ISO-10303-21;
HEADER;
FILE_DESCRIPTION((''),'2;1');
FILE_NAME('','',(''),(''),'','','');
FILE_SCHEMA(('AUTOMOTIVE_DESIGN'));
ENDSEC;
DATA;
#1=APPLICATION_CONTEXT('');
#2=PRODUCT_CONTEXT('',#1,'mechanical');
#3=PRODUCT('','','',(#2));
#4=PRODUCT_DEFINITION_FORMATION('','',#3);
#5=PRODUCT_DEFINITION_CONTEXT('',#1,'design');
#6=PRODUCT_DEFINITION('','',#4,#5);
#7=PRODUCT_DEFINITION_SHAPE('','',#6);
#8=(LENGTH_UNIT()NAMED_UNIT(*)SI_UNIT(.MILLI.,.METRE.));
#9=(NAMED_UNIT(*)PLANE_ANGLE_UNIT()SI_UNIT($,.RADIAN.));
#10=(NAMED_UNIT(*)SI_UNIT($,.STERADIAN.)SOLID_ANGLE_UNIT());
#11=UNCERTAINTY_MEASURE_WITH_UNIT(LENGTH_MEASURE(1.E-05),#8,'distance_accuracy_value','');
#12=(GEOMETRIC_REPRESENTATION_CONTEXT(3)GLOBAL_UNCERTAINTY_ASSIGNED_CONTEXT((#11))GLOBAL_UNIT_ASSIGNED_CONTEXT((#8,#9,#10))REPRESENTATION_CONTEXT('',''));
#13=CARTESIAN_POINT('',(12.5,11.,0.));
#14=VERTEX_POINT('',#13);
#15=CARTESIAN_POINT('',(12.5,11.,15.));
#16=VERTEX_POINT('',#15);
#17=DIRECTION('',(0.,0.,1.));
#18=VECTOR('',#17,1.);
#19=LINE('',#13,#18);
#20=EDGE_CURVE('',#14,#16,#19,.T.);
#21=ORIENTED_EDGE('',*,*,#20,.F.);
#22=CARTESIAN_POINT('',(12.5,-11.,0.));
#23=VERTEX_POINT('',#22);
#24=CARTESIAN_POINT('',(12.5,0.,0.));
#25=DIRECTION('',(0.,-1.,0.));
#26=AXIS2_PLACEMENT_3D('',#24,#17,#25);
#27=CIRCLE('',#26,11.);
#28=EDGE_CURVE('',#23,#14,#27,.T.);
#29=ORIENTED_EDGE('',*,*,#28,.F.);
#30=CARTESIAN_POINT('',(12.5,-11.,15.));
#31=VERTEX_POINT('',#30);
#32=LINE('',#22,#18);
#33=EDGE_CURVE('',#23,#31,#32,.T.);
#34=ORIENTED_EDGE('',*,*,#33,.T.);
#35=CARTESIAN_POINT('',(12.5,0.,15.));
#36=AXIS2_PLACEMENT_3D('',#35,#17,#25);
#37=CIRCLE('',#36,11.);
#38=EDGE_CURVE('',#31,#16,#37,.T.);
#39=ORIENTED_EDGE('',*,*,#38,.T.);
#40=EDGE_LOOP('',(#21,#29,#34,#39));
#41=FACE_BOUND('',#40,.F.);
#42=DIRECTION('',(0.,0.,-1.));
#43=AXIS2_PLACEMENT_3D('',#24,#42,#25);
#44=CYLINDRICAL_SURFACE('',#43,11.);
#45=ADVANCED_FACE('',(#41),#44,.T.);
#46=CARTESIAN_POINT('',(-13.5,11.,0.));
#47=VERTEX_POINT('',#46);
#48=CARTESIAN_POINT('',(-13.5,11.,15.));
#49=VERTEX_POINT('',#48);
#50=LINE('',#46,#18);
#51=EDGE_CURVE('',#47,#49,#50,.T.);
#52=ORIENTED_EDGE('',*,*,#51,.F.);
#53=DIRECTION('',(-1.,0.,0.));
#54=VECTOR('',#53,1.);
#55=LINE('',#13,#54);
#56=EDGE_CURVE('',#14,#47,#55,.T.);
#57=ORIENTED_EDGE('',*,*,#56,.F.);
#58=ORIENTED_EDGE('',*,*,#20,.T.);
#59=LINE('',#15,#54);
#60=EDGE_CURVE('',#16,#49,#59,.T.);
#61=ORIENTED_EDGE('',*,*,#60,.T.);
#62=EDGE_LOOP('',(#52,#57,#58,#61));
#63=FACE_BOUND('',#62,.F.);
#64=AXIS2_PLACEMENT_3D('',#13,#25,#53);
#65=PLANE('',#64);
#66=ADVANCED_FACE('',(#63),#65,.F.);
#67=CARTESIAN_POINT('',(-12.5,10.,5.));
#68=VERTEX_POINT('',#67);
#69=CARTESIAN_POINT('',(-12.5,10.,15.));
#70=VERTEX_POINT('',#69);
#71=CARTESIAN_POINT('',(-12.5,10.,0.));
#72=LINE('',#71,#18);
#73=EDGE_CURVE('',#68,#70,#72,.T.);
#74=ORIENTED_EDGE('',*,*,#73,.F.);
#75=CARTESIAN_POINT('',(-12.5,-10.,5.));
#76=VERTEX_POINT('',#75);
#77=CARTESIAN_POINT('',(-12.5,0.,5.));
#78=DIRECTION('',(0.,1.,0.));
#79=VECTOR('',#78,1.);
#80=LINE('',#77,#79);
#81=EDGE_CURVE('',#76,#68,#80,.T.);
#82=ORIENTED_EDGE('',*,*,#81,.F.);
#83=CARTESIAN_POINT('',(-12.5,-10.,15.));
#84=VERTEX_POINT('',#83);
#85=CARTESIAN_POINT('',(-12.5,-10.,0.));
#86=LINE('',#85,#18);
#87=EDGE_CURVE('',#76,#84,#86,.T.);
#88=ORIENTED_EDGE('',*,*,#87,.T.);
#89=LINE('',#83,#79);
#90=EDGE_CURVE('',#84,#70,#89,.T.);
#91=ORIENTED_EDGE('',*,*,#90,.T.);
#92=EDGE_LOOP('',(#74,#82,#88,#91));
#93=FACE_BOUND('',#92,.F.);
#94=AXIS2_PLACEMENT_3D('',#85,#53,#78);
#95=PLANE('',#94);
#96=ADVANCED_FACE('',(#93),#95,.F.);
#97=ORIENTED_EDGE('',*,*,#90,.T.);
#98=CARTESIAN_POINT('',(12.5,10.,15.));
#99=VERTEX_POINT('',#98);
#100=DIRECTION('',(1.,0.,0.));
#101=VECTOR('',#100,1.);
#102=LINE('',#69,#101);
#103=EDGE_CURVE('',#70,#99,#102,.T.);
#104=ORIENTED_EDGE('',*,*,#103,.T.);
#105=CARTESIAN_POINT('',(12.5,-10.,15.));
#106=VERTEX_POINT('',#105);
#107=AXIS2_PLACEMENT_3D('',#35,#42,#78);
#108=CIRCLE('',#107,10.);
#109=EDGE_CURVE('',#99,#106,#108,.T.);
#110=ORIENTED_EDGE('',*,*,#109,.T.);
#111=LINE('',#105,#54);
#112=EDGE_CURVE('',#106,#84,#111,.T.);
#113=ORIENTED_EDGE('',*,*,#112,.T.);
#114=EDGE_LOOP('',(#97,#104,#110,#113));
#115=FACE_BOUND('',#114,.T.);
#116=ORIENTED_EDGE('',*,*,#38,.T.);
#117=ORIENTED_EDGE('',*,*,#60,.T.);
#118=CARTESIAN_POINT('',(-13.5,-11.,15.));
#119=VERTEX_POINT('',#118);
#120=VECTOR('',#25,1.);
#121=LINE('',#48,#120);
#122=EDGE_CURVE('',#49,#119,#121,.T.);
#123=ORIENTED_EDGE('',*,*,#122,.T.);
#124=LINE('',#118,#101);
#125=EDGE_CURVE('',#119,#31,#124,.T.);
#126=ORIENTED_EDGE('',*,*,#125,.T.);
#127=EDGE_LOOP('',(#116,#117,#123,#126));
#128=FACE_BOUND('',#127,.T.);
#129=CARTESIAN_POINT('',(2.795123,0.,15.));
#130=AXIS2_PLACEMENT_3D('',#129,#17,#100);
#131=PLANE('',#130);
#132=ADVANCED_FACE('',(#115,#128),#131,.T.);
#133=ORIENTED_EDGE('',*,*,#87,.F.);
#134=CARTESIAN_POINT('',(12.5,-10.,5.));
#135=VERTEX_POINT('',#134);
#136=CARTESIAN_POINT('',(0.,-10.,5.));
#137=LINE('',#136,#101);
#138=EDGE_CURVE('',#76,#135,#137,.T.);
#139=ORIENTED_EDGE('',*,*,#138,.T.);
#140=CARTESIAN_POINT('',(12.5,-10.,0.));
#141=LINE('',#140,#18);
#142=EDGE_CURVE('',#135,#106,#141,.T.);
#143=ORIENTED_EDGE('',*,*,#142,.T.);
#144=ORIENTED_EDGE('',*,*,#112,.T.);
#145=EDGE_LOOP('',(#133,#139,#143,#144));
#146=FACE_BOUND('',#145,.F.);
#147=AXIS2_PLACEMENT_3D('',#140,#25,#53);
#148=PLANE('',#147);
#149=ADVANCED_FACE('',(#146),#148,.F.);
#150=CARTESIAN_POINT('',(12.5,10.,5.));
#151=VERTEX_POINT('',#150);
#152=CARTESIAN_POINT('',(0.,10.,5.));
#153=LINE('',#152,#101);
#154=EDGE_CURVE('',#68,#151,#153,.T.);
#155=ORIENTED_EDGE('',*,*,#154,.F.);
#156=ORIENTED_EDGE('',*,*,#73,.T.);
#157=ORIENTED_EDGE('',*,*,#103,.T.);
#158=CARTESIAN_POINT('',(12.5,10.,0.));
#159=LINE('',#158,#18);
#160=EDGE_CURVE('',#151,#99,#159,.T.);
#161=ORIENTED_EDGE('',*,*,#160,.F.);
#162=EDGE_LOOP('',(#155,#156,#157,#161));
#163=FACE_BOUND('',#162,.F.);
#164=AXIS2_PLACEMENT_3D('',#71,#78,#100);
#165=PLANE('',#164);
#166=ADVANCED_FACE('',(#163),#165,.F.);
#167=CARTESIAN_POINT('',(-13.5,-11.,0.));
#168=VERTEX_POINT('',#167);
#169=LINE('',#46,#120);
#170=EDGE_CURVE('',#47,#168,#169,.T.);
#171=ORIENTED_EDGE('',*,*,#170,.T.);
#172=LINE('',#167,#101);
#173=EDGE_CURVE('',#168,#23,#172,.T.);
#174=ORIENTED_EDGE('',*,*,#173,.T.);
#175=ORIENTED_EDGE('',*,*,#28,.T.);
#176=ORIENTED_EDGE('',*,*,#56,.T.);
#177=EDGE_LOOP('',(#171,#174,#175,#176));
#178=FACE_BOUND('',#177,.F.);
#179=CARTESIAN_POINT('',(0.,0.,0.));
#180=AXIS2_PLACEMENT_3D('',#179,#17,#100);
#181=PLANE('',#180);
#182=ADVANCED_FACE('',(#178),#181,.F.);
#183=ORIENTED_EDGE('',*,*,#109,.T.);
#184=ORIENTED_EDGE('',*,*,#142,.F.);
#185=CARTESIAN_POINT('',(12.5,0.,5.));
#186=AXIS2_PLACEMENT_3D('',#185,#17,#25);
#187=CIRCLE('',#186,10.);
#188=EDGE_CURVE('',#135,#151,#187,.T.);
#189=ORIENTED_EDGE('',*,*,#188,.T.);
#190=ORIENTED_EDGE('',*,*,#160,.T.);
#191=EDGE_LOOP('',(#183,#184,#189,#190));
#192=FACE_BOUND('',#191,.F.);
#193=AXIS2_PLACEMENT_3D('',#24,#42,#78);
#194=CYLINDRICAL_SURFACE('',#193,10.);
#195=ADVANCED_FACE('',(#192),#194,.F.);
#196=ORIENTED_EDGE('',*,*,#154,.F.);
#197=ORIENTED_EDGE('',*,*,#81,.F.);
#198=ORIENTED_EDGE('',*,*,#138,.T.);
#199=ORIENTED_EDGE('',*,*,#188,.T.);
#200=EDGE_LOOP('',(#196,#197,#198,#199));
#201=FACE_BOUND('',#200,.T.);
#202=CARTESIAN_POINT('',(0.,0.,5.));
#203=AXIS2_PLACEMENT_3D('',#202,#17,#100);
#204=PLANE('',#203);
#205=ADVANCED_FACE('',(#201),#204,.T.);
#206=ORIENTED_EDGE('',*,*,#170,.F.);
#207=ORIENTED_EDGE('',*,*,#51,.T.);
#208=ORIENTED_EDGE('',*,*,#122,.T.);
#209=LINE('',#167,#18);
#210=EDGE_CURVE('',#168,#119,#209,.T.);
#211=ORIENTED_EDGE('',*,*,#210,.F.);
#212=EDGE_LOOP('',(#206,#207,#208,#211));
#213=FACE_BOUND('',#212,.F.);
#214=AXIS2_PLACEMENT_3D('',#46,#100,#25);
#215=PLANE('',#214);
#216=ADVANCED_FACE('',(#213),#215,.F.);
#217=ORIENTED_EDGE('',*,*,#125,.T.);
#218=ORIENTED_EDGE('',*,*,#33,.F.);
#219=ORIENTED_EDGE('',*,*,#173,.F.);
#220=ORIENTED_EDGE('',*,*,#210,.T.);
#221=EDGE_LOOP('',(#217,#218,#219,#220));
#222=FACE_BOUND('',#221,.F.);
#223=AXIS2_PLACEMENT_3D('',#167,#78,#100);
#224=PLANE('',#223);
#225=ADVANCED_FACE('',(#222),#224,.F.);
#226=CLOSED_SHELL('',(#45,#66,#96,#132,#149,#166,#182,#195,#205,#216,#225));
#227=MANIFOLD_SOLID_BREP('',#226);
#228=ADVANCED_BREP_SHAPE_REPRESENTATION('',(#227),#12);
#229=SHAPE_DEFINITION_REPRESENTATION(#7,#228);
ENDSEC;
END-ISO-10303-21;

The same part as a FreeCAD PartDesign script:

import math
import FreeCAD as App
import Part
import Sketcher

doc = App.newDocument("Part")
body = doc.addObject("PartDesign::Body", "Body")

# Sketch on XY plane
sketch1 = body.newObject("Sketcher::SketchObject", "Sketch")
sketch1.AttachmentSupport = (doc.getObject("XY_Plane"), [""])
sketch1.MapMode = "FlatFace"
sketch1.addGeometry([
    Part.ArcOfCircle(Part.Circle(App.Vector(12, 0, 0), App.Vector(0, 0, 1), 11), math.radians(-90), math.radians(90)),  # 0
    Part.LineSegment(App.Vector(12, 11, 0), App.Vector(-14, 11, 0)),  # 1
    Part.LineSegment(App.Vector(-14, 11, 0), App.Vector(-14, -11, 0)),  # 2
    Part.LineSegment(App.Vector(-14, -11, 0), App.Vector(12, -11, 0)),  # 3
    Part.LineSegment(App.Vector(-12, -10, 0), App.Vector(-12, 10, 0)),  # 4
    Part.LineSegment(App.Vector(-12, 10, 0), App.Vector(12, 10, 0)),  # 5
    Part.ArcOfCircle(Part.Circle(App.Vector(12, 0, 0), App.Vector(0, 0, 1), 10), math.radians(-90), math.radians(90)),  # 6
    Part.LineSegment(App.Vector(12, -10, 0), App.Vector(-12, -10, 0)),  # 7
], False)
sketch1.addConstraint([
    Sketcher.Constraint("Tangent", 0, 2, 1, 1),
    Sketcher.Constraint("Coincident", 1, 2, 2, 1),
    Sketcher.Constraint("Coincident", 2, 2, 3, 1),
    Sketcher.Constraint("Tangent", 3, 2, 0, 1),
    Sketcher.Constraint("Coincident", 4, 2, 5, 1),
    Sketcher.Constraint("Tangent", 5, 2, 6, 2),
    Sketcher.Constraint("Tangent", 6, 1, 7, 1),
    Sketcher.Constraint("Coincident", 7, 2, 4, 1),
    Sketcher.Constraint("Horizontal", 1),
    Sketcher.Constraint("Vertical", 2),
    Sketcher.Constraint("Horizontal", 3),
    Sketcher.Constraint("Vertical", 4),
    Sketcher.Constraint("Horizontal", 5),
    Sketcher.Constraint("Horizontal", 7),
    Sketcher.Constraint("Coincident", 6, 3, 0, 3),
    Sketcher.Constraint("Symmetric", 4, 2, 6, 1, -1, 1),
    Sketcher.Constraint("Radius", 0, 11.0),
    Sketcher.Constraint("Radius", 6, 10.0),
    Sketcher.Constraint("DistanceX", 1, 2, 1, 1, 26.0),
    Sketcher.Constraint("DistanceX", 5, 1, 5, 2, 25.0),
])
pad1 = body.newObject("PartDesign::Pad", "Pad")
pad1.Profile = sketch1
pad1.Length = 15

# Sketch on XY plane
sketch2 = body.newObject("Sketcher::SketchObject", "Sketch001")
sketch2.AttachmentSupport = (doc.getObject("XY_Plane"), [""])
sketch2.MapMode = "FlatFace"
sketch2.addGeometry([
    Part.LineSegment(App.Vector(-12, 10, 0), App.Vector(-12, -10, 0)),
    Part.LineSegment(App.Vector(-12, -10, 0), App.Vector(12, -10, 0)),
    Part.ArcOfCircle(Part.Circle(App.Vector(12, 0, 0), App.Vector(0, 0, 1), 10), math.radians(-90), math.radians(90)),
    Part.LineSegment(App.Vector(12, 10, 0), App.Vector(-12, 10, 0)),
], False)
sketch2.addConstraint([
    Sketcher.Constraint("Coincident", 0, 2, 1, 1),
    Sketcher.Constraint("Tangent", 1, 2, 2, 1),
    Sketcher.Constraint("Tangent", 2, 2, 3, 1),
    Sketcher.Constraint("Coincident", 3, 2, 0, 1),
    Sketcher.Constraint("Vertical", 0),
    Sketcher.Constraint("Horizontal", 1),
    Sketcher.Constraint("Horizontal", 3),
    Sketcher.Constraint("Symmetric", 0, 2, 2, 2, -1, 1),
    Sketcher.Constraint("Radius", 2, 10.0),
    Sketcher.Constraint("DistanceX", 1, 1, 1, 2, 25.0),
])
pad2 = body.newObject("PartDesign::Pad", "Pad001")
pad2.Profile = sketch2
pad2.Length = 5

doc.recompute()
